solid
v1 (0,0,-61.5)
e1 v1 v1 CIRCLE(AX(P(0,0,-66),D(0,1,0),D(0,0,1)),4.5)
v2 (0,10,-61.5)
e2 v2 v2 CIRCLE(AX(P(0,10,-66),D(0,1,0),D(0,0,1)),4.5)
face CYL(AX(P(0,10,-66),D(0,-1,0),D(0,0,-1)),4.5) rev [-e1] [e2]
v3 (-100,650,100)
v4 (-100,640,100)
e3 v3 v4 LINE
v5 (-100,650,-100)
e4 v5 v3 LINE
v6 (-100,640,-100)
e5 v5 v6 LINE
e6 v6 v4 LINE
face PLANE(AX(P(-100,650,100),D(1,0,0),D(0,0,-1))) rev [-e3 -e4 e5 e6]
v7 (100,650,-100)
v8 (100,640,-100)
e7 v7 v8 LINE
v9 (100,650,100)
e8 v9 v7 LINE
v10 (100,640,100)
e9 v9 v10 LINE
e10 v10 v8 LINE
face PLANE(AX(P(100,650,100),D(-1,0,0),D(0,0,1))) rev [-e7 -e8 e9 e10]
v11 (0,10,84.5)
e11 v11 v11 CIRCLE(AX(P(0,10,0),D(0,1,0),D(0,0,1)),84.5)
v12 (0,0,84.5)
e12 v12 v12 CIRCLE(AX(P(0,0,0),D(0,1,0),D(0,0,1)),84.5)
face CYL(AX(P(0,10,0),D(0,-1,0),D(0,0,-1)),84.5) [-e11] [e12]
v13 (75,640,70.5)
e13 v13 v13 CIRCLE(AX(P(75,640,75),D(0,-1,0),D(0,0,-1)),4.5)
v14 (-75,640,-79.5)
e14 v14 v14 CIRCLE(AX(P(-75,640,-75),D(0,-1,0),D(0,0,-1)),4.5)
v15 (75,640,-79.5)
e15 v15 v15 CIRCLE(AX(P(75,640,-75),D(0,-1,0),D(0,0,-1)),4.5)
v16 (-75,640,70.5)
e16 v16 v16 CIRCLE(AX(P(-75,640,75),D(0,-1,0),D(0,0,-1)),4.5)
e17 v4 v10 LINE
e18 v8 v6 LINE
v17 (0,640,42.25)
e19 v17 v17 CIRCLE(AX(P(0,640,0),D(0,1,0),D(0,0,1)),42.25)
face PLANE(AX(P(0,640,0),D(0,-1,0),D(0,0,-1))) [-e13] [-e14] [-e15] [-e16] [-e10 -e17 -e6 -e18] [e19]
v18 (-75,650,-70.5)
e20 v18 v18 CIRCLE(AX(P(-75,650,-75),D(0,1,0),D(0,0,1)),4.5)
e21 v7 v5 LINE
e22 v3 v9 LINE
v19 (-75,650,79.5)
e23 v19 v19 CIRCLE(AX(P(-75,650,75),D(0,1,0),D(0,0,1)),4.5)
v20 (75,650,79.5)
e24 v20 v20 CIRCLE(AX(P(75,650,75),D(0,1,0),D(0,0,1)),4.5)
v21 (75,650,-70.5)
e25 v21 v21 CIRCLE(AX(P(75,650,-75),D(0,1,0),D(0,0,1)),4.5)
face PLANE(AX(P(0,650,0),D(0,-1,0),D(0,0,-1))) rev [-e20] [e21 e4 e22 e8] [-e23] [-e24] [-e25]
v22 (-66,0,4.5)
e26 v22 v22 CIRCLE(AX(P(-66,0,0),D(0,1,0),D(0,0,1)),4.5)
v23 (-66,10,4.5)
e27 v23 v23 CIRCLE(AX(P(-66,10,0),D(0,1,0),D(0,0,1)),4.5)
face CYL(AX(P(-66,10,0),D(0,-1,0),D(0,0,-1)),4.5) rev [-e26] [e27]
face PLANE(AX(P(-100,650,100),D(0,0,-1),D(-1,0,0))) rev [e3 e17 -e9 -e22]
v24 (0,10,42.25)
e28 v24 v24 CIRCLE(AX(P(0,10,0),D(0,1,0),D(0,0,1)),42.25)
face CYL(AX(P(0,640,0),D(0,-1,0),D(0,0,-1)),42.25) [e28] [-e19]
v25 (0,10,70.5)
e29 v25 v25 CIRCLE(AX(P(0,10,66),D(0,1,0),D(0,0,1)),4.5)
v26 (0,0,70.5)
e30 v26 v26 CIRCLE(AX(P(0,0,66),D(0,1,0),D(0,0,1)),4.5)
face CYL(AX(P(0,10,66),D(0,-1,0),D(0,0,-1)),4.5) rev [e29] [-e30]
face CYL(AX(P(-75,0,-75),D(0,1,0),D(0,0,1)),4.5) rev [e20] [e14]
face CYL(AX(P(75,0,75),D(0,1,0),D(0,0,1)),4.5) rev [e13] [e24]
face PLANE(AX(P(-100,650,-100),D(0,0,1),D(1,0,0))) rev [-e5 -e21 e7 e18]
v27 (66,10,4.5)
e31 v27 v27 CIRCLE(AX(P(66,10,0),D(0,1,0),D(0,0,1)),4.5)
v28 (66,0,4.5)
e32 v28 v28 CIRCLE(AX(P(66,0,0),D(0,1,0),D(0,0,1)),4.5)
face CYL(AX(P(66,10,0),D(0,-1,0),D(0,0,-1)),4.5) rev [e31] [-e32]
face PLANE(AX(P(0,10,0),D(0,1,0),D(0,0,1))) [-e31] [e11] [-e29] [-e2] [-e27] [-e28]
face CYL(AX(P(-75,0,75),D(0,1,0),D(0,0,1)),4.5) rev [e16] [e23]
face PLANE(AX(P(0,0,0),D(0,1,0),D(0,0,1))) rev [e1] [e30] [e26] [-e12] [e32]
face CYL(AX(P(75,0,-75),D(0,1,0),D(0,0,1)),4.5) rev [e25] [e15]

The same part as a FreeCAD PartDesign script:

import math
import FreeCAD as App
import Part
import Sketcher
Q = App.Units.Quantity

doc = App.newDocument("Part")
body = doc.addObject("PartDesign::Body", "Body")

# Sketch on XZ plane
sketch1 = body.newObject("Sketcher::SketchObject", "Sketch")
sketch1.AttachmentSupport = (doc.getObject("XZ_Plane"), [""])
sketch1.MapMode = "FlatFace"
sketch1.addGeometry(Part.Circle(App.Vector(0, 0, 0), App.Vector(0, 0, 1), 84.5), False)
sketch1.addGeometry(Part.Circle(App.Vector(0, -66, 0), App.Vector(0, 0, 1), 4.5), False)
sketch1.addGeometry(Part.Circle(App.Vector(-66, 0, 0), App.Vector(0, 0, 1), 4.5), False)
sketch1.addGeometry(Part.Circle(App.Vector(66, 0, 0), App.Vector(0, 0, 1), 4.5), False)
sketch1.addGeometry(Part.Circle(App.Vector(0, 66, 0), App.Vector(0, 0, 1), 4.5), False)
sketch1.addConstraint(Sketcher.Constraint("Coincident", 0, 3, -1, 1))
sketch1.addConstraint(Sketcher.Constraint("Equal", 1, 2))
sketch1.addConstraint(Sketcher.Constraint("Equal", 2, 3))
sketch1.addConstraint(Sketcher.Constraint("Equal", 3, 4))
sketch1.addConstraint(Sketcher.Constraint("Symmetric", 2, 3, 3, 3, -1, 1))
sketch1.addConstraint(Sketcher.Constraint("Symmetric", 1, 3, 4, 3, -1, 1))
sketch1.addConstraint(Sketcher.Constraint("PointOnObject", 1, 3, -2))
sketch1.addConstraint(Sketcher.Constraint("PointOnObject", 2, 3, -1))
sketch1.addConstraint(Sketcher.Constraint("Diameter", 0, Q("169 mm")))
sketch1.addConstraint(Sketcher.Constraint("Diameter", 1, Q("9 mm")))
sketch1.addConstraint(Sketcher.Constraint("DistanceY", 1, 3, -1, 1, Q("66 mm")))
sketch1.addConstraint(Sketcher.Constraint("DistanceX", 2, 3, -1, 1, Q("66 mm")))
pad1 = body.newObject("PartDesign::Pad", "Pad")
pad1.Profile = sketch1
pad1.Length = 10
pad1.Reversed = True

# Sketch on XZ plane
sketch2 = body.newObject("Sketcher::SketchObject", "Sketch001")
sketch2.AttachmentSupport = (doc.getObject("XZ_Plane"), [""])
sketch2.MapMode = "FlatFace"
sketch2.AttachmentOffset = App.Placement(App.Vector(0, 0, -10), App.Rotation())
sketch2.addGeometry(Part.Circle(App.Vector(0, 0, 0), App.Vector(0, 0, 1), 42), False)
sketch2.addConstraint(Sketcher.Constraint("Coincident", 0, 3, -1, 1))
sketch2.addConstraint(Sketcher.Constraint("Diameter", 0, Q("84.5 mm")))
pad2 = body.newObject("PartDesign::Pad", "Pad001")
pad2.Profile = sketch2
pad2.Length = 630
pad2.Reversed = True

# Sketch on XZ plane
sketch3 = body.newObject("Sketcher::SketchObject", "Sketch002")
sketch3.AttachmentSupport = (doc.getObject("XZ_Plane"), [""])
sketch3.MapMode = "FlatFace"
sketch3.AttachmentOffset = App.Placement(App.Vector(0, 0, -640), App.Rotation())
sketch3.addGeometry(Part.LineSegment(App.Vector(-100, -100, 0), App.Vector(-100, 100, 0)), False)
sketch3.addGeometry(Part.LineSegment(App.Vector(-100, 100, 0), App.Vector(100, 100, 0)), False)
sketch3.addGeometry(Part.LineSegment(App.Vector(100, 100, 0), App.Vector(100, -100, 0)), False)
sketch3.addGeometry(Part.LineSegment(App.Vector(100, -100, 0), App.Vector(-100, -100, 0)), False)
sketch3.addConstraint(Sketcher.Constraint("Coincident", 0, 2, 1, 1))
sketch3.addConstraint(Sketcher.Constraint("Coincident", 1, 2, 2, 1))
sketch3.addConstraint(Sketcher.Constraint("Coincident", 2, 2, 3, 1))
sketch3.addConstraint(Sketcher.Constraint("Coincident", 3, 2, 0, 1))
sketch3.addConstraint(Sketcher.Constraint("Vertical", 0))
sketch3.addConstraint(Sketcher.Constraint("Horizontal", 1))
sketch3.addConstraint(Sketcher.Constraint("Vertical", 2))
sketch3.addConstraint(Sketcher.Constraint("Horizontal", 3))
sketch3.addConstraint(Sketcher.Constraint("Symmetric", 0, 2, 2, 2, -1, 1))
sketch3.addConstraint(Sketcher.Constraint("Equal", 3, 0))
sketch3.addConstraint(Sketcher.Constraint("DistanceX", 1, 1, 1, 2, Q("200 mm")))
pad3 = body.newObject("PartDesign::Pad", "Pad002")
pad3.Profile = sketch3
pad3.Length = 10
pad3.Reversed = True

# Sketch on XZ plane
sketch4 = body.newObject("Sketcher::SketchObject", "Sketch003")
sketch4.AttachmentSupport = (doc.getObject("XZ_Plane"), [""])
sketch4.MapMode = "FlatFace"
sketch4.AttachmentOffset = App.Placement(App.Vector(0, 0, -650), App.Rotation())
sketch4.addGeometry(Part.ArcOfCircle(Part.Circle(App.Vector(-75, 75, 0), App.Vector(0, 0, 1), 4.5), math.radians(-90), math.radians(0)), False)
sketch4.addGeometry(Part.ArcOfCircle(Part.Circle(App.Vector(-75, 75, 0), App.Vector(0, 0, 1), 4.5), math.radians(0), math.radians(270)), False)
sketch4.addGeometry(Part.ArcOfCircle(Part.Circle(App.Vector(-75, -75, 0), App.Vector(0, 0, 1), 4.5), math.radians(90), math.radians(360)), False)
sketch4.addGeometry(Part.ArcOfCircle(Part.Circle(App.Vector(-75, -75, 0), App.Vector(0, 0, 1), 4.5), math.radians(0), math.radians(90)), False)
sketch4.addGeometry(Part.ArcOfCircle(Part.Circle(App.Vector(75, -75, 0), App.Vector(0, 0, 1), 4.5), math.radians(90), math.radians(180)), False)
sketch4.addGeometry(Part.ArcOfCircle(Part.Circle(App.Vector(75, -75, 0), App.Vector(0, 0, 1), 4.5), math.radians(0), math.radians(90)), False)
sketch4.addGeometry(Part.ArcOfCircle(Part.Circle(App.Vector(75, -75, 0), App.Vector(0, 0, 1), 4.5), math.radians(180), math.radians(360)), False)
sketch4.addGeometry(Part.ArcOfCircle(Part.Circle(App.Vector(75, 75, 0), App.Vector(0, 0, 1), 4.5), math.radians(-180), math.radians(-90)), False)
sketch4.addGeometry(Part.ArcOfCircle(Part.Circle(App.Vector(75, 75, 0), App.Vector(0, 0, 1), 4.5), math.radians(0), math.radians(180)), False)
sketch4.addGeometry(Part.ArcOfCircle(Part.Circle(App.Vector(75, 75, 0), App.Vector(0, 0, 1), 4.5), math.radians(-90), math.radians(0)), False)
sketch4.addConstraint(Sketcher.Constraint("Tangent", 0, 1, 1, 2))
sketch4.addConstraint(Sketcher.Constraint("Coincident", 1, 1, 0, 2))
sketch4.addConstraint(Sketcher.Constraint("Tangent", 2, 1, 3, 2))
sketch4.addConstraint(Sketcher.Constraint("Coincident", 3, 1, 2, 2))
sketch4.addConstraint(Sketcher.Constraint("Tangent", 4, 1, 5, 2))
sketch4.addConstraint(Sketcher.Constraint("Tangent", 5, 1, 6, 2))
sketch4.addConstraint(Sketcher.Constraint("Tangent", 6, 1, 4, 2))
sketch4.addConstraint(Sketcher.Constraint("Tangent", 7, 1, 8, 2))
sketch4.addConstraint(Sketcher.Constraint("Tangent", 8, 1, 9, 2))
sketch4.addConstraint(Sketcher.Constraint("Tangent", 9, 1, 7, 2))
sketch4.addConstraint(Sketcher.Constraint("Equal", 1, 2))
sketch4.addConstraint(Sketcher.Constraint("Equal", 3, 4))
sketch4.addConstraint(Sketcher.Constraint("Equal", 6, 7))
sketch4.addConstraint(Sketcher.Constraint("Symmetric", 0, 3, 4, 3, -1, 1))
sketch4.addConstraint(Sketcher.Constraint("Symmetric", 2, 3, 7, 3, -1, 1))
sketch4.addConstraint(Sketcher.Constraint("Symmetric", 2, 3, 4, 3, -2))
sketch4.addConstraint(Sketcher.Constraint("Horizontal", 9, 3, 1, 1))
sketch4.addConstraint(Sketcher.Constraint("Horizontal", 6, 3, 3, 1))
sketch4.addConstraint(Sketcher.Constraint("Horizontal", 3, 1, 5, 1))
sketch4.addConstraint(Sketcher.Constraint("Horizontal", 5, 1, 6, 1))
sketch4.addConstraint(Sketcher.Constraint("Horizontal", 1, 1, 7, 1))
sketch4.addConstraint(Sketcher.Constraint("Horizontal", 7, 1, 8, 1))
sketch4.addConstraint(Sketcher.Constraint("Vertical", 3, 3, 0, 1))
sketch4.addConstraint(Sketcher.Constraint("Vertical", 0, 1, 2, 1))
sketch4.addConstraint(Sketcher.Constraint("Vertical", 9, 3, 4, 1))
sketch4.addConstraint(Sketcher.Constraint("Vertical", 4, 1, 9, 1))
sketch4.addConstraint(Sketcher.Constraint("Radius", 0, Q("4.5 mm")))
sketch4.addConstraint(Sketcher.Constraint("DistanceX", 0, 3, -1, 1, Q("75 mm")))
sketch4.addConstraint(Sketcher.Constraint("DistanceY", -1, 1, 0, 3, Q("75 mm")))
pocket1 = body.newObject("PartDesign::Pocket", "Pocket")
pocket1.Profile = sketch4
pocket1.Type = "ThroughAll"
pocket1.Reversed = True

doc.recompute()
